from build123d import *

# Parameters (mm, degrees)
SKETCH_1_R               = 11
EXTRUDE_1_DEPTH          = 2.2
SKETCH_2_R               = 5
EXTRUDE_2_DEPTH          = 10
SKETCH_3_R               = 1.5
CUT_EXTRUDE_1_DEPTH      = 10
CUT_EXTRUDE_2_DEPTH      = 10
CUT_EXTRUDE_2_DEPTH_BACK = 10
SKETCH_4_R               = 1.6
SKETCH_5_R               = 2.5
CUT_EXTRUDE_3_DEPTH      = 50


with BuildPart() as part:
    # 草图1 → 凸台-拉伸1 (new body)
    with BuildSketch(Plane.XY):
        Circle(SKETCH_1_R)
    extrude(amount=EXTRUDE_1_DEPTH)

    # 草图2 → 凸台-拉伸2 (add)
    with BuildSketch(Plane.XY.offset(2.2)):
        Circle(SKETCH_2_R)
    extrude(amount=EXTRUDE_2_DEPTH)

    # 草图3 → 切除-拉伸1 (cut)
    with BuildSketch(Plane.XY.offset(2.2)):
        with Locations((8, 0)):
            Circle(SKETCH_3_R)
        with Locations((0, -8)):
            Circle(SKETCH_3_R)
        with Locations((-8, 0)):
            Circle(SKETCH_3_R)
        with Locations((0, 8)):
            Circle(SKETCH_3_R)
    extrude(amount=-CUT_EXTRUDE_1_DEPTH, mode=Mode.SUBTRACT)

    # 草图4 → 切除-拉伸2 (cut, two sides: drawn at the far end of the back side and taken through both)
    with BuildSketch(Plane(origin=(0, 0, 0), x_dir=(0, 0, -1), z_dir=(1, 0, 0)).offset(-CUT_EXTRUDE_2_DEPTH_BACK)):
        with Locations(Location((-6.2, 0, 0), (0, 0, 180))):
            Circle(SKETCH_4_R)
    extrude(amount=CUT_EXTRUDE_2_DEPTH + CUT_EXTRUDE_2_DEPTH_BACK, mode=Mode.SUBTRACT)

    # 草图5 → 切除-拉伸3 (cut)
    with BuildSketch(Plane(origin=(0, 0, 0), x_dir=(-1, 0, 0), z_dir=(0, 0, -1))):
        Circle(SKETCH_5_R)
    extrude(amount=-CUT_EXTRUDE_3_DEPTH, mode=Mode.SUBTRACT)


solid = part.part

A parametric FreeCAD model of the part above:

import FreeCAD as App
import Part
import Sketcher
Q = App.Units.Quantity

doc = App.newDocument("Part")
params = doc.addObject("Spreadsheet::Sheet", "Params")
for row, (alias, value) in enumerate([
    ("sketch1_diameter", "22 mm"),
    ("pad1_length", "2.2 mm"),
    ("sketch2_diameter", "10 mm"),
    ("pad2_length", "10 mm"),
    ("sketch3_diameter", "3 mm"),
    ("pocket1_length", "10 mm"),
    ("sketch4_diameter", "3.2 mm"),
    ("sketch5_diameter", "5 mm"),
    ("pocket3_length", "50 mm"),
], start=1):
    params.set(f"A{row}", alias)
    params.set(f"B{row}", "=" + value)
    params.setAlias(f"B{row}", alias)

body = doc.addObject("PartDesign::Body", "Body")

sketch1 = body.newObject("Sketcher::SketchObject", "Sketch")
sketch1.AttachmentSupport = (doc.getObject("XY_Plane"), [""])
sketch1.MapMode = "FlatFace"
sketch1.addGeometry(Part.Circle(App.Vector(0, 0, 0), App.Vector(0, 0, 1), 11), False)
sketch1.addConstraint(Sketcher.Constraint("Coincident", 0, 3, -1, 1))
sketch1.addConstraint(Sketcher.Constraint("Diameter", 0, Q("22 mm")))
sketch1.setExpression("Constraints[1]", "Params.sketch1_diameter")
pad1 = body.newObject("PartDesign::Pad", "Pad")
pad1.Profile = sketch1
pad1.setExpression("Length", "Params.pad1_length")

sketch2 = body.newObject("Sketcher::SketchObject", "Sketch001")
sketch2.AttachmentSupport = (doc.getObject("XY_Plane"), [""])
sketch2.MapMode = "FlatFace"
sketch2.AttachmentOffset = App.Placement(App.Vector(0, 0, 2.2), App.Rotation())
sketch2.addGeometry(Part.Circle(App.Vector(0, 0, 0), App.Vector(0, 0, 1), 5), False)
sketch2.addConstraint(Sketcher.Constraint("Coincident", 0, 3, -1, 1))
sketch2.addConstraint(Sketcher.Constraint("Diameter", 0, Q("10 mm")))
sketch2.setExpression("Constraints[1]", "Params.sketch2_diameter")
pad2 = body.newObject("PartDesign::Pad", "Pad001")
pad2.Profile = sketch2
pad2.setExpression("Length", "Params.pad2_length")

sketch3 = body.newObject("Sketcher::SketchObject", "Sketch002")
sketch3.AttachmentSupport = (doc.getObject("XY_Plane"), [""])
sketch3.MapMode = "FlatFace"
sketch3.AttachmentOffset = App.Placement(App.Vector(0, 0, 2.2), App.Rotation())
sketch3.addGeometry(Part.Circle(App.Vector(8, 0, 0), App.Vector(0, 0, 1), 1.5), False)
sketch3.addGeometry(Part.Circle(App.Vector(0, -8, 0), App.Vector(0, 0, 1), 1.5), False)
sketch3.addGeometry(Part.Circle(App.Vector(-8, 0, 0), App.Vector(0, 0, 1), 1.5), False)
sketch3.addGeometry(Part.Circle(App.Vector(0, 8, 0), App.Vector(0, 0, 1), 1.5), False)
sketch3.addConstraint(Sketcher.Constraint("Equal", 0, 1))
sketch3.addConstraint(Sketcher.Constraint("Equal", 1, 2))
sketch3.addConstraint(Sketcher.Constraint("Equal", 2, 3))
sketch3.addConstraint(Sketcher.Constraint("Symmetric", 0, 3, 2, 3, -1, 1))
sketch3.addConstraint(Sketcher.Constraint("Symmetric", 1, 3, 3, 3, -1, 1))
sketch3.addConstraint(Sketcher.Constraint("PointOnObject", 0, 3, -1))
sketch3.addConstraint(Sketcher.Constraint("PointOnObject", 1, 3, -2))
sketch3.addConstraint(Sketcher.Constraint("Diameter", 0, Q("3 mm")))
sketch3.addConstraint(Sketcher.Constraint("DistanceX", -1, 1, 0, 3, Q("8 mm")))
sketch3.addConstraint(Sketcher.Constraint("DistanceY", 1, 3, -1, 1, Q("8 mm")))
sketch3.setExpression("Constraints[7]", "Params.sketch3_diameter")
pocket1 = body.newObject("PartDesign::Pocket", "Pocket")
pocket1.Profile = sketch3
pocket1.setExpression("Length", "Params.pocket1_length")

sketch4 = body.newObject("Sketcher::SketchObject", "Sketch003")
sketch4.AttachmentSupport = (doc.getObject("YZ_Plane"), [""])
sketch4.MapMode = "FlatFace"
sketch4.addGeometry(Part.Circle(App.Vector(0, 6.2, 0), App.Vector(0, 0, 1), 1.6), False)
sketch4.addConstraint(Sketcher.Constraint("PointOnObject", 0, 3, -2))
sketch4.addConstraint(Sketcher.Constraint("Diameter", 0, Q("3.2 mm")))
sketch4.addConstraint(Sketcher.Constraint("DistanceY", -1, 1, 0, 3, Q("6.2 mm")))
sketch4.setExpression("Constraints[1]", "Params.sketch4_diameter")
pocket2 = body.newObject("PartDesign::Pocket", "Pocket001")
pocket2.Profile = sketch4
pocket2.Type = "ThroughAll"
pocket2.Midplane = True

sketch5 = body.newObject("Sketcher::SketchObject", "Sketch004")
sketch5.AttachmentSupport = (doc.getObject("XY_Plane"), [""])
sketch5.MapMode = "FlatFace"
sketch5.addGeometry(Part.Circle(App.Vector(0, 0, 0), App.Vector(0, 0, 1), 2.5), False)
sketch5.addConstraint(Sketcher.Constraint("Coincident", 0, 3, -1, 1))
sketch5.addConstraint(Sketcher.Constraint("Diameter", 0, Q("5 mm")))
sketch5.setExpression("Constraints[1]", "Params.sketch5_diameter")
pocket3 = body.newObject("PartDesign::Pocket", "Pocket002")
pocket3.Profile = sketch5
pocket3.setExpression("Length", "Params.pocket3_length")
pocket3.Reversed = True

doc.recompute()
